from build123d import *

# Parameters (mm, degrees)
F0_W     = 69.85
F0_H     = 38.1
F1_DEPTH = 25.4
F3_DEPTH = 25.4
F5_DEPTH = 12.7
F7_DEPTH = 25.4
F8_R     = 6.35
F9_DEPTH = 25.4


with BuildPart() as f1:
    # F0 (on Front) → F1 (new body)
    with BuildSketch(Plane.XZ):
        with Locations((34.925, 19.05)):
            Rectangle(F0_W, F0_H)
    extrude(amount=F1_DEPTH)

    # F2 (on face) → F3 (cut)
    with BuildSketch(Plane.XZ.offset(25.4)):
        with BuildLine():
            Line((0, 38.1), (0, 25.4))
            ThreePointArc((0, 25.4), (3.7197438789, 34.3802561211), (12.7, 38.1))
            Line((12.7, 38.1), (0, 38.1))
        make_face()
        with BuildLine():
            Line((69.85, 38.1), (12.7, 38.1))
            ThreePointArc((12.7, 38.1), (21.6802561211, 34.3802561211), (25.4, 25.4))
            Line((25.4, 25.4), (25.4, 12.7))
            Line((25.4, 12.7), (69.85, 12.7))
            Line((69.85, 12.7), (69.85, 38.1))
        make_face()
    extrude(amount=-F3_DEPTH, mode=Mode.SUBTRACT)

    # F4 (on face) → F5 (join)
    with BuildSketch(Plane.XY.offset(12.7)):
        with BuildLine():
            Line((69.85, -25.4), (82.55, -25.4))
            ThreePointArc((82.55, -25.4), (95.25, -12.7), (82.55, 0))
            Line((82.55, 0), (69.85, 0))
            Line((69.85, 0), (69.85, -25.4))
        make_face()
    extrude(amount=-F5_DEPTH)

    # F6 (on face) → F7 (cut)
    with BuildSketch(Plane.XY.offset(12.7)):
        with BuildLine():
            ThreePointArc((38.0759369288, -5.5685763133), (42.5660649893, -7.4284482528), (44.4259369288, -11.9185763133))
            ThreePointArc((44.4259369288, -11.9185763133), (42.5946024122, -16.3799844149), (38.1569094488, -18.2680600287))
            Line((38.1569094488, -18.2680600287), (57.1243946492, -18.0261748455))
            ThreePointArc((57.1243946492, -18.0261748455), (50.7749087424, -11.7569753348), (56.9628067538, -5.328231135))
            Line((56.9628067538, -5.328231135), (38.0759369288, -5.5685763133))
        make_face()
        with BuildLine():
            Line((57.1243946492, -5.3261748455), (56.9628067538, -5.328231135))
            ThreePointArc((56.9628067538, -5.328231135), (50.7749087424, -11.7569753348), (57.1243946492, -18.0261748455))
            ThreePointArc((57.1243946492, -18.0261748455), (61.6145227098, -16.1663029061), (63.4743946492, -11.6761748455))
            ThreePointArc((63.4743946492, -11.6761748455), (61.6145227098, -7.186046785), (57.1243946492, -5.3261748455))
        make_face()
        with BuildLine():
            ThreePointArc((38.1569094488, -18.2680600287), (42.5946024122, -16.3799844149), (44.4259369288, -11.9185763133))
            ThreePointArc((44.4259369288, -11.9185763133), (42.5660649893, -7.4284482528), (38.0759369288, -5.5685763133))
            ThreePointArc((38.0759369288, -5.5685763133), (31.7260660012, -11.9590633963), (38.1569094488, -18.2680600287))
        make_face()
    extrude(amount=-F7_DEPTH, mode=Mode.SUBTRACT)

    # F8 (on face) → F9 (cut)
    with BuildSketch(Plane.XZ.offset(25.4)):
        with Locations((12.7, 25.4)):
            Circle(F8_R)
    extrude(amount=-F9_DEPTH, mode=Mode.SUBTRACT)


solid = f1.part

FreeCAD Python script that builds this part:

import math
import FreeCAD as App
import Part
import Sketcher

V = App.Vector
Q = App.Units.Quantity


def add_polygon(sketch, points):
    """Adds a closed chain of lines whose ends are joined by coincident constraints."""
    first, n = sketch.GeometryCount, len(points)
    for a, b in zip(points, points[1:] + points[:1]):
        sketch.addGeometry(Part.LineSegment(App.Vector(*a, 0), App.Vector(*b, 0)), False)
    for i in range(n):
        sketch.addConstraint(Sketcher.Constraint("Coincident", first + i, 2, first + (i + 1) % n, 1))

doc = App.newDocument("Part")
body = doc.addObject("PartDesign::Body", "Body")

# Sketch on XZ plane
sketch1 = body.newObject("Sketcher::SketchObject", "Sketch")
sketch1.AttachmentSupport = (doc.getObject("XZ_Plane"), [""])
sketch1.MapMode = "FlatFace"
add_polygon(sketch1, [(0, 38), (0, 0), (70, 0), (70, 38)])  # lines 0-3
sketch1.addConstraint([
    Sketcher.Constraint("Vertical", 0),
    Sketcher.Constraint("Horizontal", 1),
    Sketcher.Constraint("Vertical", 2),
    Sketcher.Constraint("Horizontal", 3),
    Sketcher.Constraint("Coincident", 0, 2, -1, 1),
    Sketcher.Constraint("DistanceY", 0, 2, 0, 1, Q("1.5 in")),
    Sketcher.Constraint("DistanceX", 1, 1, 1, 2, Q("2.75 in")),
])
pad1 = body.newObject("PartDesign::Pad", "Pad")
pad1.Profile = sketch1
pad1.Length = Q("1 in")

# Sketch on XZ plane
sketch2 = body.newObject("Sketcher::SketchObject", "Sketch001")
sketch2.AttachmentSupport = (doc.getObject("XZ_Plane"), [""])
sketch2.MapMode = "FlatFace"
sketch2.AttachmentOffset = App.Placement(V(0, 0, 1 * 25.4), App.Rotation())
sketch2.addGeometry([
    Part.LineSegment(V(0, 38, 0), V(0, 25, 0)),  # 0
    Part.ArcOfCircle(Part.Circle(V(13, 25, 0), V(0, 0, 1), 13), math.radians(90), math.radians(180)),  # 1
    Part.LineSegment(V(13, 38, 0), V(0, 38, 0)),  # 2
    Part.LineSegment(V(70, 38, 0), V(13, 38, 0)),  # 3
    Part.ArcOfCircle(Part.Circle(V(13, 25, 0), V(0, 0, 1), 13), math.radians(0), math.radians(90)),  # 4
    Part.LineSegment(V(25, 25, 0), V(25, 13, 0)),  # 5
    Part.LineSegment(V(25, 13, 0), V(70, 13, 0)),  # 6
    Part.LineSegment(V(70, 13, 0), V(70, 38, 0)),  # 7
], False)
sketch2.addConstraint([
    Sketcher.Constraint("Tangent", 0, 2, 1, 2),
    Sketcher.Constraint("Tangent", 1, 1, 2, 1),
    Sketcher.Constraint("Coincident", 2, 2, 0, 1),
    Sketcher.Constraint("Tangent", 3, 2, 4, 2),
    Sketcher.Constraint("Tangent", 4, 1, 5, 1),
    Sketcher.Constraint("Coincident", 5, 2, 6, 1),
    Sketcher.Constraint("Coincident", 6, 2, 7, 1),
    Sketcher.Constraint("Coincident", 7, 2, 3, 1),
    Sketcher.Constraint("Vertical", 0),
    Sketcher.Constraint("Horizontal", 2),
    Sketcher.Constraint("Horizontal", 3),
    Sketcher.Constraint("Vertical", 5),
    Sketcher.Constraint("Horizontal", 6),
    Sketcher.Constraint("Vertical", 7),
    Sketcher.Constraint("Coincident", 4, 3, 1, 3),
    Sketcher.Constraint("Equal", 1, 4),
    Sketcher.Constraint("PointOnObject", 0, 2, -2),
    Sketcher.Constraint("Equal", 0, 5),
    Sketcher.Constraint("Radius", 1, Q("0.5 in")),
    Sketcher.Constraint("DistanceY", -1, 1, 1, 3, Q("1 in")),
    Sketcher.Constraint("DistanceX", 3, 2, 3, 1, Q("2.25 in")),
])
pocket1 = body.newObject("PartDesign::Pocket", "Pocket")
pocket1.Profile = sketch2
pocket1.Length = Q("1 in")

# Sketch on XY plane
sketch3 = body.newObject("Sketcher::SketchObject", "Sketch002")
sketch3.AttachmentSupport = (doc.getObject("XY_Plane"), [""])
sketch3.MapMode = "FlatFace"
sketch3.AttachmentOffset = App.Placement(V(0, 0, 0.5 * 25.4), App.Rotation())
sketch3.addGeometry([
    Part.LineSegment(V(70, -25, 0), V(83, -25, 0)),
    Part.ArcOfCircle(Part.Circle(V(83, -13, 0), V(0, 0, 1), 13), math.radians(-90), math.radians(90)),
    Part.LineSegment(V(83, 0, 0), V(70, 0, 0)),
    Part.LineSegment(V(70, 0, 0), V(70, -25, 0)),
], False)
sketch3.addConstraint([
    Sketcher.Constraint("Tangent", 0, 2, 1, 1),
    Sketcher.Constraint("Tangent", 1, 2, 2, 1),
    Sketcher.Constraint("Coincident", 2, 2, 3, 1),
    Sketcher.Constraint("Coincident", 3, 2, 0, 1),
    Sketcher.Constraint("Horizontal", 0),
    Sketcher.Constraint("Horizontal", 2),
    Sketcher.Constraint("Vertical", 3),
    Sketcher.Constraint("PointOnObject", 1, 2, -1),
    Sketcher.Constraint("Radius", 1, Q("0.5 in")),
    Sketcher.Constraint("DistanceX", 0, 1, 0, 2, Q("0.5 in")),
    Sketcher.Constraint("DistanceX", -1, 1, 1, 3, Q("3.25 in")),
])
pad2 = body.newObject("PartDesign::Pad", "Pad001")
pad2.Profile = sketch3
pad2.Length = Q("0.5 in")
pad2.Reversed = True

# Sketch on XY plane
sketch4 = body.newObject("Sketcher::SketchObject", "Sketch003")
sketch4.AttachmentSupport = (doc.getObject("XY_Plane"), [""])
sketch4.MapMode = "FlatFace"
sketch4.AttachmentOffset = App.Placement(V(0, 0, 0.5 * 25.4), App.Rotation())
sketch4.addGeometry([
    Part.LineSegment(V(38.16, -18.27, 0), V(57.12, -18.03, 0)),  # 0
    Part.ArcOfCircle(Part.Circle(V(57.12, -11.68, 0), V(0, 0, 1), 6.35), math.radians(-90), math.radians(0)),  # 1
    Part.ArcOfCircle(Part.Circle(V(57.12, -11.68, 0), V(0, 0, 1), 6.35), math.radians(0), math.radians(90)),  # 2
    Part.LineSegment(V(57.12, -5.33, 0), V(56.96, -5.33, 0)),  # 3
    Part.LineSegment(V(56.96, -5.33, 0), V(38.08, -5.57, 0)),  # 4
    Part.ArcOfCircle(Part.Circle(V(38.08, -11.92, 0), V(0, 0, 1), 6.35), math.radians(90), math.radians(271)),  # 5
], False)
sketch4.addConstraint([
    Sketcher.Constraint("Coincident", 0, 2, 1, 1),
    Sketcher.Constraint("Tangent", 1, 2, 2, 1),
    Sketcher.Constraint("Coincident", 2, 2, 3, 1),
    Sketcher.Constraint("Coincident", 3, 2, 4, 1),
    Sketcher.Constraint("Coincident", 4, 2, 5, 1),
    Sketcher.Constraint("Tangent", 5, 2, 0, 1),
    Sketcher.Constraint("Equal", 1, 2),
    Sketcher.Constraint("Equal", 2, 5),
    Sketcher.Constraint("Parallel", 3, 4),
    Sketcher.Constraint("Horizontal", 2, 3, 1, 2),
    Sketcher.Constraint("Vertical", 2, 3, 0, 2),
    Sketcher.Constraint("Vertical", 0, 2, 2, 2),
    Sketcher.Constraint("Vertical", 5, 3, 4, 2),
    Sketcher.Constraint("Radius", 1, Q("0.25 in")),
    Sketcher.Constraint("Distance", 3, 0.161601),
    Sketcher.Constraint("Distance", 4, 18.888399),
    Sketcher.Constraint("DistanceY", 5, 3, 1, 3, 0.242401),
    Sketcher.Constraint("DistanceY", 3, 2, -1, 1, 5.328231),
    Sketcher.Constraint("DistanceX", -1, 1, 5, 2, 38.156909),
])
pocket2 = body.newObject("PartDesign::Pocket", "Pocket001")
pocket2.Profile = sketch4
pocket2.Length = Q("1 in")

# Sketch on XZ plane
sketch5 = body.newObject("Sketcher::SketchObject", "Sketch004")
sketch5.AttachmentSupport = (doc.getObject("XZ_Plane"), [""])
sketch5.MapMode = "FlatFace"
sketch5.AttachmentOffset = App.Placement(V(0, 0, 1 * 25.4), App.Rotation())
sketch5.addGeometry(Part.Circle(V(13, 25, 0), V(0, 0, 1), 6), False)
sketch5.addConstraint([
    Sketcher.Constraint("Diameter", 0, Q("0.5 in")),
    Sketcher.Constraint("DistanceY", -1, 1, 0, 3, Q("1 in")),
    Sketcher.Constraint("DistanceX", -1, 1, 0, 3, Q("0.5 in")),
])
pocket3 = body.newObject("PartDesign::Pocket", "Pocket002")
pocket3.Profile = sketch5
pocket3.Length = Q("1 in")

doc.recompute()
